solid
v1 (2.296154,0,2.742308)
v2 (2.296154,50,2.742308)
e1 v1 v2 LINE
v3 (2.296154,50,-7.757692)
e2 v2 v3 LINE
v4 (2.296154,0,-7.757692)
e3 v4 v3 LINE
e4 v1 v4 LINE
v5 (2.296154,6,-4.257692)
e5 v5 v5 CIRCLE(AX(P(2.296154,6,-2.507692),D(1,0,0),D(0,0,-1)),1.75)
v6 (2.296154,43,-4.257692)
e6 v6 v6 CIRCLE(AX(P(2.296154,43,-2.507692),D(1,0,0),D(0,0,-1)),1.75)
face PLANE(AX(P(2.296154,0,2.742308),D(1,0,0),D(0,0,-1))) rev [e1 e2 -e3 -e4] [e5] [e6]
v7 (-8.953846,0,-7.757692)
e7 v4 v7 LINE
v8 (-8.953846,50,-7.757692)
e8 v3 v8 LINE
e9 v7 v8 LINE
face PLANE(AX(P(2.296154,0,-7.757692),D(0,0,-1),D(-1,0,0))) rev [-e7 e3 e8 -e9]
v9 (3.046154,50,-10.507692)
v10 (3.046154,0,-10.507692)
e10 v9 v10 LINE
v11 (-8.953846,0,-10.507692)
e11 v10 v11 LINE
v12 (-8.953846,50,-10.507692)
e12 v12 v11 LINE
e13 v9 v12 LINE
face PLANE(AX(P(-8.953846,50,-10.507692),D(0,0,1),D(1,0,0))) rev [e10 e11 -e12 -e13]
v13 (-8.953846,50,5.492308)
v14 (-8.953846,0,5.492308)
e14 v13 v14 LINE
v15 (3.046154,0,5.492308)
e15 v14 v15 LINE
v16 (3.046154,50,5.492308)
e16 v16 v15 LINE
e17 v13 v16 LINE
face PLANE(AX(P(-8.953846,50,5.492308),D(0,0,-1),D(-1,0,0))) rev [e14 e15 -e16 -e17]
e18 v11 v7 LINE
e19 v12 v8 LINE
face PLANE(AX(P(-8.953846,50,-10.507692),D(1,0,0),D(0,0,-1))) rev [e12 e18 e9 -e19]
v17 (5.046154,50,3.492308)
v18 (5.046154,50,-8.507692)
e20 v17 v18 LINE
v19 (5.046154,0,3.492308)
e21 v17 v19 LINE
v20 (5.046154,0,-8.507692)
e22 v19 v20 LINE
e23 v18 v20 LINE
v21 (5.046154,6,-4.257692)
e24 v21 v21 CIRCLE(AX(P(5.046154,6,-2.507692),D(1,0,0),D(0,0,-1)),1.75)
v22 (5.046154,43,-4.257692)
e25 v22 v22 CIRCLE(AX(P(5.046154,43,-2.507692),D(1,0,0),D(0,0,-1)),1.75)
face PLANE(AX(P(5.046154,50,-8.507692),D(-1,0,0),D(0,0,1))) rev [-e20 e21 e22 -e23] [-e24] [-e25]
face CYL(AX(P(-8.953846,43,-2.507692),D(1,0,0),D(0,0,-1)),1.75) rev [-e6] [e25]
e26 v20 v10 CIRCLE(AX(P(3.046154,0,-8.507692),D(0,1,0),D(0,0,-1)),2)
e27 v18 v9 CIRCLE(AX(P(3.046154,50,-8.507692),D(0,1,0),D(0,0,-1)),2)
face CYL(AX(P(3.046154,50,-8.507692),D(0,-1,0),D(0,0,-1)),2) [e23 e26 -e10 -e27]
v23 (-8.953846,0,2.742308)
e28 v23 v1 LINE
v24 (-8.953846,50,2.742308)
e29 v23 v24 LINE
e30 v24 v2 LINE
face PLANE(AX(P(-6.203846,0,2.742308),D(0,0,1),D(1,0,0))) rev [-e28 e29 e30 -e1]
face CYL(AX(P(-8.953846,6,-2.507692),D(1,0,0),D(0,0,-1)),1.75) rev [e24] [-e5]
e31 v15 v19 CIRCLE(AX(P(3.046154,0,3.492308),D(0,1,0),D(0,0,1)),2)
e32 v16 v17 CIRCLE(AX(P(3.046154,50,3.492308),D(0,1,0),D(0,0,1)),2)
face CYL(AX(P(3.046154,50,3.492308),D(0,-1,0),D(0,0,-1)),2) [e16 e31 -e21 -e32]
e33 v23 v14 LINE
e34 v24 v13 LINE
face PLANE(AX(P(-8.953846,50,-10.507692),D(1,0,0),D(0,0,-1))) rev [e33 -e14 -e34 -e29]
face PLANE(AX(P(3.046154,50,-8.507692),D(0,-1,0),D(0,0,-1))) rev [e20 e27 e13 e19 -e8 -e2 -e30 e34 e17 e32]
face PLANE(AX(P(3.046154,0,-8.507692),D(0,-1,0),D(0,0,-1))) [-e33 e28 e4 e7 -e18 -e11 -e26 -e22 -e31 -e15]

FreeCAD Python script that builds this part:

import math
import FreeCAD as App
import Part
import Sketcher

V = App.Vector


def add_polygon(sketch, points):
    """Adds a closed chain of lines whose ends are joined by coincident constraints."""
    first, n = sketch.GeometryCount, len(points)
    for a, b in zip(points, points[1:] + points[:1]):
        sketch.addGeometry(Part.LineSegment(App.Vector(*a, 0), App.Vector(*b, 0)), False)
    for i in range(n):
        sketch.addConstraint(Sketcher.Constraint("Coincident", first + i, 2, first + (i + 1) % n, 1))

doc = App.newDocument("Part")
body = doc.addObject("PartDesign::Body", "Body")

# Sketch on XZ plane
sketch1 = body.newObject("Sketcher::SketchObject", "Sketch")
sketch1.AttachmentSupport = (doc.getObject("XZ_Plane"), [""])
sketch1.MapMode = "FlatFace"
sketch1.addGeometry([
    Part.LineSegment(V(-8.953846, -10.507692, 0), V(-8.953846, 5.492308, 0)),  # 0
    Part.LineSegment(V(-8.953846, 5.492308, 0), V(3.046154, 5.492308, 0)),  # 1
    Part.ArcOfCircle(Part.Circle(V(3.046154, 3.492308, 0), V(0, 0, 1), 2), math.radians(0), math.radians(90)),  # 2
    Part.LineSegment(V(5.046154, 3.492308, 0), V(5.046154, -8.507692, 0)),  # 3
    Part.ArcOfCircle(Part.Circle(V(3.046154, -8.507692, 0), V(0, 0, 1), 2), math.radians(-90), math.radians(0)),  # 4
    Part.LineSegment(V(3.046154, -10.507692, 0), V(-8.953846, -10.507692, 0)),  # 5
], False)
sketch1.addConstraint([
    Sketcher.Constraint("Coincident", 0, 2, 1, 1),
    Sketcher.Constraint("Tangent", 1, 2, 2, 2),
    Sketcher.Constraint("Tangent", 2, 1, 3, 1),
    Sketcher.Constraint("Tangent", 3, 2, 4, 2),
    Sketcher.Constraint("Tangent", 4, 1, 5, 1),
    Sketcher.Constraint("Coincident", 5, 2, 0, 1),
    Sketcher.Constraint("Vertical", 0),
    Sketcher.Constraint("Horizontal", 1),
    Sketcher.Constraint("Vertical", 3),
    Sketcher.Constraint("Horizontal", 5),
    Sketcher.Constraint("Equal", 2, 4),
    Sketcher.Constraint("Equal", 5, 3),
    Sketcher.Constraint("Radius", 2, 2.0),
    Sketcher.Constraint("DistanceX", 1, 1, 1, 2, 12.0),
    Sketcher.Constraint("DistanceX", -1, 1, 2, 3, 3.046154),
    Sketcher.Constraint("DistanceY", -1, 1, 2, 3, 3.492308),
])
pad1 = body.newObject("PartDesign::Pad", "Pad")
pad1.Profile = sketch1
pad1.Length = 50
pad1.Reversed = True

# Sketch on XZ plane
sketch2 = body.newObject("Sketcher::SketchObject", "Sketch001")
sketch2.AttachmentSupport = (doc.getObject("XZ_Plane"), [""])
sketch2.MapMode = "FlatFace"
sketch2.AttachmentOffset = App.Placement(V(0, 0, -50), App.Rotation())
add_polygon(sketch2, [(-6.203846, -7.757692), (-6.203846, 2.742308), (2.296154, 2.742308), (2.296154, -7.757692)])  # lines 0-3
sketch2.addConstraint([
    Sketcher.Constraint("Vertical", 0),
    Sketcher.Constraint("Horizontal", 1),
    Sketcher.Constraint("Vertical", 2),
    Sketcher.Constraint("Horizontal", 3),
    Sketcher.Constraint("DistanceX", 1, 1, 1, 2, 8.5),
    Sketcher.Constraint("DistanceY", 0, 1, 0, 2, 10.5),
    Sketcher.Constraint("DistanceX", 0, 2, -1, 1, 6.203846),
    Sketcher.Constraint("DistanceY", -1, 1, 0, 2, 2.742308),
])
pocket1 = body.newObject("PartDesign::Pocket", "Pocket")
pocket1.Profile = sketch2
pocket1.Type = "ThroughAll"
pocket1.Reversed = True

# Sketch on XZ plane
sketch3 = body.newObject("Sketcher::SketchObject", "Sketch002")
sketch3.AttachmentSupport = (doc.getObject("XZ_Plane"), [""])
sketch3.MapMode = "FlatFace"
sketch3.AttachmentOffset = App.Placement(V(0, 0, -50), App.Rotation())
add_polygon(sketch3, [(-8.953846, -7.757692), (-8.953846, 2.742308), (-6.203846, 2.742308), (-6.203846, -7.757692)])  # lines 0-3
sketch3.addConstraint([
    Sketcher.Constraint("Vertical", 0),
    Sketcher.Constraint("Horizontal", 1),
    Sketcher.Constraint("Vertical", 2),
    Sketcher.Constraint("Horizontal", 3),
    Sketcher.Constraint("DistanceY", 0, 1, 0, 2, 10.5),
    Sketcher.Constraint("DistanceX", 1, 1, 1, 2, 2.75),
    Sketcher.Constraint("DistanceX", 0, 2, -1, 1, 8.953846),
    Sketcher.Constraint("DistanceY", -1, 1, 0, 2, 2.742308),
])
pocket2 = body.newObject("PartDesign::Pocket", "Pocket001")
pocket2.Profile = sketch3
pocket2.Type = "ThroughAll"
pocket2.Reversed = True

# Sketch on YZ plane
sketch4 = body.newObject("Sketcher::SketchObject", "Sketch003")
sketch4.AttachmentSupport = (doc.getObject("YZ_Plane"), [""])
sketch4.MapMode = "FlatFace"
sketch4.AttachmentOffset = App.Placement(V(0, 0, 5.046154), App.Rotation())
sketch4.addGeometry([
    Part.Circle(V(43, -2.507692, 0), V(0, 0, 1), 1.75),
    Part.Circle(V(6, -2.507692, 0), V(0, 0, 1), 1.75),
], False)
sketch4.addConstraint([
    Sketcher.Constraint("Equal", 0, 1),
    Sketcher.Constraint("Horizontal", 0, 3, 1, 3),
    Sketcher.Constraint("Diameter", 0, 3.5),
    Sketcher.Constraint("DistanceX", -1, 1, 0, 3, 43.0),
    Sketcher.Constraint("DistanceX", -1, 1, 1, 3, 6.0),
    Sketcher.Constraint("DistanceY", 0, 3, -1, 1, 2.507692),
])
pocket3 = body.newObject("PartDesign::Pocket", "Pocket002")
pocket3.Profile = sketch4
pocket3.Type = "ThroughAll"

doc.recompute()
